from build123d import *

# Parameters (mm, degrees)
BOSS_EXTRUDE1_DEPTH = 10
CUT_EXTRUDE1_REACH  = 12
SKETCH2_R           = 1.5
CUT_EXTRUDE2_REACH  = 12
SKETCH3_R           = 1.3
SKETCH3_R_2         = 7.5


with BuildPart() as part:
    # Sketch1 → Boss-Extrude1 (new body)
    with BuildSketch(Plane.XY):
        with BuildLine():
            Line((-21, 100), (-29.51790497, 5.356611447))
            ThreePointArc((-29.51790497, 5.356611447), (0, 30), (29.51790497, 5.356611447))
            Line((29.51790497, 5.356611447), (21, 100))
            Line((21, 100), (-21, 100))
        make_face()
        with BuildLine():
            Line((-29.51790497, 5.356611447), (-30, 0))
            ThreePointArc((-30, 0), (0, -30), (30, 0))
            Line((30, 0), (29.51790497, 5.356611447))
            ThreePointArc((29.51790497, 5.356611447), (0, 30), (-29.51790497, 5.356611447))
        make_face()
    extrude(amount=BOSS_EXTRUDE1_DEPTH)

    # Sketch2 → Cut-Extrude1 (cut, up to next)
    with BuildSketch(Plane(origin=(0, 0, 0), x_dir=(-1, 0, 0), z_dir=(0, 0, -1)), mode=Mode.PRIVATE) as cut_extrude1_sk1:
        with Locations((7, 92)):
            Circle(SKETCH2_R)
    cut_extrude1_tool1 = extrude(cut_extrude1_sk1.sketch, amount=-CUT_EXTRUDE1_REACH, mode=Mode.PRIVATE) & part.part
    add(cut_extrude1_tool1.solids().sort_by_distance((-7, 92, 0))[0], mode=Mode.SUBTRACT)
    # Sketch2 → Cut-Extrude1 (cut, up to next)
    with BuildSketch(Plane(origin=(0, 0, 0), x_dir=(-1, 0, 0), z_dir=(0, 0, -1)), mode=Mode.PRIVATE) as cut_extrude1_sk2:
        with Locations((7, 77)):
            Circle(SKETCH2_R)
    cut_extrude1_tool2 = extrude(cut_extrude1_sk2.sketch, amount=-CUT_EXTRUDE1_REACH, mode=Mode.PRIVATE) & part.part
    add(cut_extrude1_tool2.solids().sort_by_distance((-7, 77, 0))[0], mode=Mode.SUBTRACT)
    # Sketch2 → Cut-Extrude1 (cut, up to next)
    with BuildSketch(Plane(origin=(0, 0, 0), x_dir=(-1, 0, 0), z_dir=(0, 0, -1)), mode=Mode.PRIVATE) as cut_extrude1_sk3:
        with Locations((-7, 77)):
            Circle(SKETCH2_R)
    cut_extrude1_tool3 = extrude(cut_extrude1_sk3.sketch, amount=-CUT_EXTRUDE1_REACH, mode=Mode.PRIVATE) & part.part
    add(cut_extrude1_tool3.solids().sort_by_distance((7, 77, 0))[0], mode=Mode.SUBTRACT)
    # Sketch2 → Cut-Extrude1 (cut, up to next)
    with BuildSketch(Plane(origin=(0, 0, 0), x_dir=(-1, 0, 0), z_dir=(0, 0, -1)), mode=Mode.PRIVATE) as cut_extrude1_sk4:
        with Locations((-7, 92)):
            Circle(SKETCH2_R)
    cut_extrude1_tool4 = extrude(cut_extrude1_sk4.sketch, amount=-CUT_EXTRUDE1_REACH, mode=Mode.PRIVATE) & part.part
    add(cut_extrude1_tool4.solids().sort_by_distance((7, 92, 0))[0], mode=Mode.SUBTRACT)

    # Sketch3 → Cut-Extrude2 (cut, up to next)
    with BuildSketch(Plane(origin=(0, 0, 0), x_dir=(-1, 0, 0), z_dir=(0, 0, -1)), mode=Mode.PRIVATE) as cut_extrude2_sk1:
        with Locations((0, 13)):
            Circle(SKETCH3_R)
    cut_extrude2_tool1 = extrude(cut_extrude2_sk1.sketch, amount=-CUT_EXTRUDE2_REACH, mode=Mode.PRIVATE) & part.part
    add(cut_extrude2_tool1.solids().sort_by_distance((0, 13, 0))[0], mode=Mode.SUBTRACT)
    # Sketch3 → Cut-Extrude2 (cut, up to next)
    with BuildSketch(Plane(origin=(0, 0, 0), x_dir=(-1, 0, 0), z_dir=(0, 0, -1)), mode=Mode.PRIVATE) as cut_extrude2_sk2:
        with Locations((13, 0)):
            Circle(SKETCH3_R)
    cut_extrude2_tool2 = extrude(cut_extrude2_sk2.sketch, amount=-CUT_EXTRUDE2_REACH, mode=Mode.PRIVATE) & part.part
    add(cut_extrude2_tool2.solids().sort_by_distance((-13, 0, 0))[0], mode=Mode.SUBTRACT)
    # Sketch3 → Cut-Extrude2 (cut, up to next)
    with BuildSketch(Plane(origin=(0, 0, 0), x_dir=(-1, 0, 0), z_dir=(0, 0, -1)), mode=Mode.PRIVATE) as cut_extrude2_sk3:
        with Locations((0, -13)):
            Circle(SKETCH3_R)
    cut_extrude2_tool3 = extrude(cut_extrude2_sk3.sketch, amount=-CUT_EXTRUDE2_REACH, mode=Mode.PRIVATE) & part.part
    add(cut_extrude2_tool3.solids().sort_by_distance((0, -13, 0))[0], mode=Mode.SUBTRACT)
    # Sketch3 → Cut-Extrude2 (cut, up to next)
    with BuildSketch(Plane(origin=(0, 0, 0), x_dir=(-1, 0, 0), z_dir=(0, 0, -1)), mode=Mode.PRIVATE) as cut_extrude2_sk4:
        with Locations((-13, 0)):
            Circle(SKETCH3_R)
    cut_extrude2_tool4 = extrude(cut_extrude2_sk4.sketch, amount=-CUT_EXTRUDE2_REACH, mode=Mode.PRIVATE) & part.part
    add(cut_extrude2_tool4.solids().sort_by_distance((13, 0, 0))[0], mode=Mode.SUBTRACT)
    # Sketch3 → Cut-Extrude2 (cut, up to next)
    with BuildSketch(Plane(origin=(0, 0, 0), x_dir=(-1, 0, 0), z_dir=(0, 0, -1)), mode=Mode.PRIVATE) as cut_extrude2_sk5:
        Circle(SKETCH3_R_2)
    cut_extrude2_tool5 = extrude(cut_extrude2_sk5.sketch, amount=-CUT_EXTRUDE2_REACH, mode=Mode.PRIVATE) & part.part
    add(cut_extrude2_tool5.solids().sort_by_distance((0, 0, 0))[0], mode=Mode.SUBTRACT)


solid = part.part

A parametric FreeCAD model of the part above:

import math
import FreeCAD as App
import Part
import Sketcher
from FreeCAD import Vector
Q = App.Units.Quantity

doc = App.newDocument("Part")
params = doc.addObject("Spreadsheet::Sheet", "Params")
for row, (alias, value) in enumerate([
    ("sketch1_radius", "30 mm"),
    ("sketch1_width", "42 mm"),
    ("pad1_length", "10 mm"),
    ("sketch2_diameter", "3 mm"),
    ("sketch3_diameter", "3 mm"),
    ("sketch4_diameter", "3 mm"),
    ("sketch5_diameter", "3 mm"),
    ("sketch6_diameter", "2.6 mm"),
    ("sketch7_diameter", "2.6 mm"),
    ("sketch8_diameter", "2.6 mm"),
    ("sketch9_diameter", "2.6 mm"),
    ("sketch10_diameter", "15 mm"),
], start=1):
    params.set(f"A{row}", alias)
    params.set(f"B{row}", "=" + value)
    params.setAlias(f"B{row}", alias)

body = doc.addObject("PartDesign::Body", "Body")

# Sketch on XY plane
sketch1 = doc.addObject("Sketcher::SketchObject", "Sketch")
body.addObject(sketch1)
sketch1.AttachmentSupport = (doc.XY_Plane, [""])
sketch1.MapMode = "FlatFace"
sketch1.addGeometry(Part.LineSegment(Vector(-21, 100, 0), Vector(-29.517905, 5.356611, 0)), False)
sketch1.addGeometry(Part.LineSegment(Vector(-29.517905, 5.356611, 0), Vector(-30, 0, 0)), False)
sketch1.addGeometry(Part.ArcOfCircle(Part.Circle(Vector(0, 0, 0), Vector(0, 0, 1), 30), math.radians(180), math.radians(360)), False)
sketch1.addGeometry(Part.LineSegment(Vector(30, 0, 0), Vector(29.517905, 5.356611, 0)), False)
sketch1.addGeometry(Part.LineSegment(Vector(29.517905, 5.356611, 0), Vector(21, 100, 0)), False)
sketch1.addGeometry(Part.LineSegment(Vector(21, 100, 0), Vector(-21, 100, 0)), False)
sketch1.addConstraint(Sketcher.Constraint("Coincident", 0, 2, 1, 1))
sketch1.addConstraint(Sketcher.Constraint("Coincident", 1, 2, 2, 1))
sketch1.addConstraint(Sketcher.Constraint("Coincident", 2, 2, 3, 1))
sketch1.addConstraint(Sketcher.Constraint("Coincident", 3, 2, 4, 1))
sketch1.addConstraint(Sketcher.Constraint("Coincident", 4, 2, 5, 1))
sketch1.addConstraint(Sketcher.Constraint("Coincident", 5, 2, 0, 1))
sketch1.addConstraint(Sketcher.Constraint("Horizontal", 5))
sketch1.addConstraint(Sketcher.Constraint("Coincident", 2, 3, -1, 1))
sketch1.addConstraint(Sketcher.Constraint("Symmetric", 0, 2, 3, 2, -2))
sketch1.addConstraint(Sketcher.Constraint("PointOnObject", 1, 2, -1))
sketch1.addConstraint(Sketcher.Constraint("PointOnObject", 2, 2, -1))
sketch1.addConstraint(Sketcher.Constraint("Parallel", 0, 1))
sketch1.addConstraint(Sketcher.Constraint("Parallel", 3, 4))
sketch1.addConstraint(Sketcher.Constraint("Radius", 2, Q("30 mm")))
sketch1.addConstraint(Sketcher.Constraint("DistanceX", 5, 2, 5, 1, Q("42 mm")))
sketch1.addConstraint(Sketcher.Constraint("DistanceY", -1, 1, 4, 2, Q("100 mm")))
sketch1.addConstraint(Sketcher.Constraint("Distance", 0, Q("95.025921 mm")))
sketch1.setExpression("Constraints[13]", "Params.sketch1_radius")
sketch1.setExpression("Constraints[14]", "Params.sketch1_width")
pad1 = doc.addObject("PartDesign::Pad", "Pad")
body.addObject(pad1)
pad1.Profile = sketch1
pad1.setExpression("Length", "Params.pad1_length")

# Sketch on XY plane
sketch2 = doc.addObject("Sketcher::SketchObject", "Sketch001")
body.addObject(sketch2)
sketch2.AttachmentSupport = (doc.XY_Plane, [""])
sketch2.MapMode = "FlatFace"
sketch2.addGeometry(Part.Circle(Vector(-7, 92, 0), Vector(0, 0, 1), 1.5), False)
sketch2.addConstraint(Sketcher.Constraint("Diameter", 0, Q("3 mm")))
sketch2.addConstraint(Sketcher.Constraint("DistanceX", 0, 3, -1, 1, Q("7 mm")))
sketch2.addConstraint(Sketcher.Constraint("DistanceY", -1, 1, 0, 3, Q("92 mm")))
sketch2.setExpression("Constraints[0]", "Params.sketch2_diameter")
pocket1 = doc.addObject("PartDesign::Pocket", "Pocket")
body.addObject(pocket1)
pocket1.Profile = sketch2
pocket1.Type = "UpToFirst"
pocket1.Reversed = True

# Sketch on XY plane
sketch3 = doc.addObject("Sketcher::SketchObject", "Sketch002")
body.addObject(sketch3)
sketch3.AttachmentSupport = (doc.XY_Plane, [""])
sketch3.MapMode = "FlatFace"
sketch3.addGeometry(Part.Circle(Vector(-7, 77, 0), Vector(0, 0, 1), 1.5), False)
sketch3.addConstraint(Sketcher.Constraint("Diameter", 0, Q("3 mm")))
sketch3.addConstraint(Sketcher.Constraint("DistanceX", 0, 3, -1, 1, Q("7 mm")))
sketch3.addConstraint(Sketcher.Constraint("DistanceY", -1, 1, 0, 3, Q("77 mm")))
sketch3.setExpression("Constraints[0]", "Params.sketch3_diameter")
pocket2 = doc.addObject("PartDesign::Pocket", "Pocket001")
body.addObject(pocket2)
pocket2.Profile = sketch3
pocket2.Type = "UpToFirst"
pocket2.Reversed = True

# Sketch on XY plane
sketch4 = doc.addObject("Sketcher::SketchObject", "Sketch003")
body.addObject(sketch4)
sketch4.AttachmentSupport = (doc.XY_Plane, [""])
sketch4.MapMode = "FlatFace"
sketch4.addGeometry(Part.Circle(Vector(7, 77, 0), Vector(0, 0, 1), 1.5), False)
sketch4.addConstraint(Sketcher.Constraint("Diameter", 0, Q("3 mm")))
sketch4.addConstraint(Sketcher.Constraint("DistanceX", -1, 1, 0, 3, Q("7 mm")))
sketch4.addConstraint(Sketcher.Constraint("DistanceY", -1, 1, 0, 3, Q("77 mm")))
sketch4.setExpression("Constraints[0]", "Params.sketch4_diameter")
pocket3 = doc.addObject("PartDesign::Pocket", "Pocket002")
body.addObject(pocket3)
pocket3.Profile = sketch4
pocket3.Type = "UpToFirst"
pocket3.Reversed = True

# Sketch on XY plane
sketch5 = doc.addObject("Sketcher::SketchObject", "Sketch004")
body.addObject(sketch5)
sketch5.AttachmentSupport = (doc.XY_Plane, [""])
sketch5.MapMode = "FlatFace"
sketch5.addGeometry(Part.Circle(Vector(7, 92, 0), Vector(0, 0, 1), 1.5), False)
sketch5.addConstraint(Sketcher.Constraint("Diameter", 0, Q("3 mm")))
sketch5.addConstraint(Sketcher.Constraint("DistanceX", -1, 1, 0, 3, Q("7 mm")))
sketch5.addConstraint(Sketcher.Constraint("DistanceY", -1, 1, 0, 3, Q("92 mm")))
sketch5.setExpression("Constraints[0]", "Params.sketch5_diameter")
pocket4 = doc.addObject("PartDesign::Pocket", "Pocket003")
body.addObject(pocket4)
pocket4.Profile = sketch5
pocket4.Type = "UpToFirst"
pocket4.Reversed = True

# Sketch on XY plane
sketch6 = doc.addObject("Sketcher::SketchObject", "Sketch005")
body.addObject(sketch6)
sketch6.AttachmentSupport = (doc.XY_Plane, [""])
sketch6.MapMode = "FlatFace"
sketch6.addGeometry(Part.Circle(Vector(0, 13, 0), Vector(0, 0, 1), 1.3), False)
sketch6.addConstraint(Sketcher.Constraint("PointOnObject", 0, 3, -2))
sketch6.addConstraint(Sketcher.Constraint("Diameter", 0, Q("2.6 mm")))
sketch6.addConstraint(Sketcher.Constraint("DistanceY", -1, 1, 0, 3, Q("13 mm")))
sketch6.setExpression("Constraints[1]", "Params.sketch6_diameter")
pocket5 = doc.addObject("PartDesign::Pocket", "Pocket004")
body.addObject(pocket5)
pocket5.Profile = sketch6
pocket5.Type = "UpToFirst"
pocket5.Reversed = True

# Sketch on XY plane
sketch7 = doc.addObject("Sketcher::SketchObject", "Sketch006")
body.addObject(sketch7)
sketch7.AttachmentSupport = (doc.XY_Plane, [""])
sketch7.MapMode = "FlatFace"
sketch7.addGeometry(Part.Circle(Vector(-13, 0, 0), Vector(0, 0, 1), 1.3), False)
sketch7.addConstraint(Sketcher.Constraint("PointOnObject", 0, 3, -1))
sketch7.addConstraint(Sketcher.Constraint("Diameter", 0, Q("2.6 mm")))
sketch7.addConstraint(Sketcher.Constraint("DistanceX", 0, 3, -1, 1, Q("13 mm")))
sketch7.setExpression("Constraints[1]", "Params.sketch7_diameter")
pocket6 = doc.addObject("PartDesign::Pocket", "Pocket005")
body.addObject(pocket6)
pocket6.Profile = sketch7
pocket6.Type = "UpToFirst"
pocket6.Reversed = True

# Sketch on XY plane
sketch8 = doc.addObject("Sketcher::SketchObject", "Sketch007")
body.addObject(sketch8)
sketch8.AttachmentSupport = (doc.XY_Plane, [""])
sketch8.MapMode = "FlatFace"
sketch8.addGeometry(Part.Circle(Vector(0, -13, 0), Vector(0, 0, 1), 1.3), False)
sketch8.addConstraint(Sketcher.Constraint("PointOnObject", 0, 3, -2))
sketch8.addConstraint(Sketcher.Constraint("Diameter", 0, Q("2.6 mm")))
sketch8.addConstraint(Sketcher.Constraint("DistanceY", 0, 3, -1, 1, Q("13 mm")))
sketch8.setExpression("Constraints[1]", "Params.sketch8_diameter")
pocket7 = doc.addObject("PartDesign::Pocket", "Pocket006")
body.addObject(pocket7)
pocket7.Profile = sketch8
pocket7.Type = "UpToFirst"
pocket7.Reversed = True

# Sketch on XY plane
sketch9 = doc.addObject("Sketcher::SketchObject", "Sketch008")
body.addObject(sketch9)
sketch9.AttachmentSupport = (doc.XY_Plane, [""])
sketch9.MapMode = "FlatFace"
sketch9.addGeometry(Part.Circle(Vector(13, 0, 0), Vector(0, 0, 1), 1.3), False)
sketch9.addConstraint(Sketcher.Constraint("PointOnObject", 0, 3, -1))
sketch9.addConstraint(Sketcher.Constraint("Diameter", 0, Q("2.6 mm")))
sketch9.addConstraint(Sketcher.Constraint("DistanceX", -1, 1, 0, 3, Q("13 mm")))
sketch9.setExpression("Constraints[1]", "Params.sketch9_diameter")
pocket8 = doc.addObject("PartDesign::Pocket", "Pocket007")
body.addObject(pocket8)
pocket8.Profile = sketch9
pocket8.Type = "UpToFirst"
pocket8.Reversed = True

# Sketch on XY plane
sketch10 = doc.addObject("Sketcher::SketchObject", "Sketch009")
body.addObject(sketch10)
sketch10.AttachmentSupport = (doc.XY_Plane, [""])
sketch10.MapMode = "FlatFace"
sketch10.addGeometry(Part.Circle(Vector(0, 0, 0), Vector(0, 0, 1), 7.5), False)
sketch10.addConstraint(Sketcher.Constraint("Coincident", 0, 3, -1, 1))
sketch10.addConstraint(Sketcher.Constraint("Diameter", 0, Q("15 mm")))
sketch10.setExpression("Constraints[1]", "Params.sketch10_diameter")
pocket9 = doc.addObject("PartDesign::Pocket", "Pocket008")
body.addObject(pocket9)
pocket9.Profile = sketch10
pocket9.Type = "UpToFirst"
pocket9.Reversed = True

doc.recompute()
